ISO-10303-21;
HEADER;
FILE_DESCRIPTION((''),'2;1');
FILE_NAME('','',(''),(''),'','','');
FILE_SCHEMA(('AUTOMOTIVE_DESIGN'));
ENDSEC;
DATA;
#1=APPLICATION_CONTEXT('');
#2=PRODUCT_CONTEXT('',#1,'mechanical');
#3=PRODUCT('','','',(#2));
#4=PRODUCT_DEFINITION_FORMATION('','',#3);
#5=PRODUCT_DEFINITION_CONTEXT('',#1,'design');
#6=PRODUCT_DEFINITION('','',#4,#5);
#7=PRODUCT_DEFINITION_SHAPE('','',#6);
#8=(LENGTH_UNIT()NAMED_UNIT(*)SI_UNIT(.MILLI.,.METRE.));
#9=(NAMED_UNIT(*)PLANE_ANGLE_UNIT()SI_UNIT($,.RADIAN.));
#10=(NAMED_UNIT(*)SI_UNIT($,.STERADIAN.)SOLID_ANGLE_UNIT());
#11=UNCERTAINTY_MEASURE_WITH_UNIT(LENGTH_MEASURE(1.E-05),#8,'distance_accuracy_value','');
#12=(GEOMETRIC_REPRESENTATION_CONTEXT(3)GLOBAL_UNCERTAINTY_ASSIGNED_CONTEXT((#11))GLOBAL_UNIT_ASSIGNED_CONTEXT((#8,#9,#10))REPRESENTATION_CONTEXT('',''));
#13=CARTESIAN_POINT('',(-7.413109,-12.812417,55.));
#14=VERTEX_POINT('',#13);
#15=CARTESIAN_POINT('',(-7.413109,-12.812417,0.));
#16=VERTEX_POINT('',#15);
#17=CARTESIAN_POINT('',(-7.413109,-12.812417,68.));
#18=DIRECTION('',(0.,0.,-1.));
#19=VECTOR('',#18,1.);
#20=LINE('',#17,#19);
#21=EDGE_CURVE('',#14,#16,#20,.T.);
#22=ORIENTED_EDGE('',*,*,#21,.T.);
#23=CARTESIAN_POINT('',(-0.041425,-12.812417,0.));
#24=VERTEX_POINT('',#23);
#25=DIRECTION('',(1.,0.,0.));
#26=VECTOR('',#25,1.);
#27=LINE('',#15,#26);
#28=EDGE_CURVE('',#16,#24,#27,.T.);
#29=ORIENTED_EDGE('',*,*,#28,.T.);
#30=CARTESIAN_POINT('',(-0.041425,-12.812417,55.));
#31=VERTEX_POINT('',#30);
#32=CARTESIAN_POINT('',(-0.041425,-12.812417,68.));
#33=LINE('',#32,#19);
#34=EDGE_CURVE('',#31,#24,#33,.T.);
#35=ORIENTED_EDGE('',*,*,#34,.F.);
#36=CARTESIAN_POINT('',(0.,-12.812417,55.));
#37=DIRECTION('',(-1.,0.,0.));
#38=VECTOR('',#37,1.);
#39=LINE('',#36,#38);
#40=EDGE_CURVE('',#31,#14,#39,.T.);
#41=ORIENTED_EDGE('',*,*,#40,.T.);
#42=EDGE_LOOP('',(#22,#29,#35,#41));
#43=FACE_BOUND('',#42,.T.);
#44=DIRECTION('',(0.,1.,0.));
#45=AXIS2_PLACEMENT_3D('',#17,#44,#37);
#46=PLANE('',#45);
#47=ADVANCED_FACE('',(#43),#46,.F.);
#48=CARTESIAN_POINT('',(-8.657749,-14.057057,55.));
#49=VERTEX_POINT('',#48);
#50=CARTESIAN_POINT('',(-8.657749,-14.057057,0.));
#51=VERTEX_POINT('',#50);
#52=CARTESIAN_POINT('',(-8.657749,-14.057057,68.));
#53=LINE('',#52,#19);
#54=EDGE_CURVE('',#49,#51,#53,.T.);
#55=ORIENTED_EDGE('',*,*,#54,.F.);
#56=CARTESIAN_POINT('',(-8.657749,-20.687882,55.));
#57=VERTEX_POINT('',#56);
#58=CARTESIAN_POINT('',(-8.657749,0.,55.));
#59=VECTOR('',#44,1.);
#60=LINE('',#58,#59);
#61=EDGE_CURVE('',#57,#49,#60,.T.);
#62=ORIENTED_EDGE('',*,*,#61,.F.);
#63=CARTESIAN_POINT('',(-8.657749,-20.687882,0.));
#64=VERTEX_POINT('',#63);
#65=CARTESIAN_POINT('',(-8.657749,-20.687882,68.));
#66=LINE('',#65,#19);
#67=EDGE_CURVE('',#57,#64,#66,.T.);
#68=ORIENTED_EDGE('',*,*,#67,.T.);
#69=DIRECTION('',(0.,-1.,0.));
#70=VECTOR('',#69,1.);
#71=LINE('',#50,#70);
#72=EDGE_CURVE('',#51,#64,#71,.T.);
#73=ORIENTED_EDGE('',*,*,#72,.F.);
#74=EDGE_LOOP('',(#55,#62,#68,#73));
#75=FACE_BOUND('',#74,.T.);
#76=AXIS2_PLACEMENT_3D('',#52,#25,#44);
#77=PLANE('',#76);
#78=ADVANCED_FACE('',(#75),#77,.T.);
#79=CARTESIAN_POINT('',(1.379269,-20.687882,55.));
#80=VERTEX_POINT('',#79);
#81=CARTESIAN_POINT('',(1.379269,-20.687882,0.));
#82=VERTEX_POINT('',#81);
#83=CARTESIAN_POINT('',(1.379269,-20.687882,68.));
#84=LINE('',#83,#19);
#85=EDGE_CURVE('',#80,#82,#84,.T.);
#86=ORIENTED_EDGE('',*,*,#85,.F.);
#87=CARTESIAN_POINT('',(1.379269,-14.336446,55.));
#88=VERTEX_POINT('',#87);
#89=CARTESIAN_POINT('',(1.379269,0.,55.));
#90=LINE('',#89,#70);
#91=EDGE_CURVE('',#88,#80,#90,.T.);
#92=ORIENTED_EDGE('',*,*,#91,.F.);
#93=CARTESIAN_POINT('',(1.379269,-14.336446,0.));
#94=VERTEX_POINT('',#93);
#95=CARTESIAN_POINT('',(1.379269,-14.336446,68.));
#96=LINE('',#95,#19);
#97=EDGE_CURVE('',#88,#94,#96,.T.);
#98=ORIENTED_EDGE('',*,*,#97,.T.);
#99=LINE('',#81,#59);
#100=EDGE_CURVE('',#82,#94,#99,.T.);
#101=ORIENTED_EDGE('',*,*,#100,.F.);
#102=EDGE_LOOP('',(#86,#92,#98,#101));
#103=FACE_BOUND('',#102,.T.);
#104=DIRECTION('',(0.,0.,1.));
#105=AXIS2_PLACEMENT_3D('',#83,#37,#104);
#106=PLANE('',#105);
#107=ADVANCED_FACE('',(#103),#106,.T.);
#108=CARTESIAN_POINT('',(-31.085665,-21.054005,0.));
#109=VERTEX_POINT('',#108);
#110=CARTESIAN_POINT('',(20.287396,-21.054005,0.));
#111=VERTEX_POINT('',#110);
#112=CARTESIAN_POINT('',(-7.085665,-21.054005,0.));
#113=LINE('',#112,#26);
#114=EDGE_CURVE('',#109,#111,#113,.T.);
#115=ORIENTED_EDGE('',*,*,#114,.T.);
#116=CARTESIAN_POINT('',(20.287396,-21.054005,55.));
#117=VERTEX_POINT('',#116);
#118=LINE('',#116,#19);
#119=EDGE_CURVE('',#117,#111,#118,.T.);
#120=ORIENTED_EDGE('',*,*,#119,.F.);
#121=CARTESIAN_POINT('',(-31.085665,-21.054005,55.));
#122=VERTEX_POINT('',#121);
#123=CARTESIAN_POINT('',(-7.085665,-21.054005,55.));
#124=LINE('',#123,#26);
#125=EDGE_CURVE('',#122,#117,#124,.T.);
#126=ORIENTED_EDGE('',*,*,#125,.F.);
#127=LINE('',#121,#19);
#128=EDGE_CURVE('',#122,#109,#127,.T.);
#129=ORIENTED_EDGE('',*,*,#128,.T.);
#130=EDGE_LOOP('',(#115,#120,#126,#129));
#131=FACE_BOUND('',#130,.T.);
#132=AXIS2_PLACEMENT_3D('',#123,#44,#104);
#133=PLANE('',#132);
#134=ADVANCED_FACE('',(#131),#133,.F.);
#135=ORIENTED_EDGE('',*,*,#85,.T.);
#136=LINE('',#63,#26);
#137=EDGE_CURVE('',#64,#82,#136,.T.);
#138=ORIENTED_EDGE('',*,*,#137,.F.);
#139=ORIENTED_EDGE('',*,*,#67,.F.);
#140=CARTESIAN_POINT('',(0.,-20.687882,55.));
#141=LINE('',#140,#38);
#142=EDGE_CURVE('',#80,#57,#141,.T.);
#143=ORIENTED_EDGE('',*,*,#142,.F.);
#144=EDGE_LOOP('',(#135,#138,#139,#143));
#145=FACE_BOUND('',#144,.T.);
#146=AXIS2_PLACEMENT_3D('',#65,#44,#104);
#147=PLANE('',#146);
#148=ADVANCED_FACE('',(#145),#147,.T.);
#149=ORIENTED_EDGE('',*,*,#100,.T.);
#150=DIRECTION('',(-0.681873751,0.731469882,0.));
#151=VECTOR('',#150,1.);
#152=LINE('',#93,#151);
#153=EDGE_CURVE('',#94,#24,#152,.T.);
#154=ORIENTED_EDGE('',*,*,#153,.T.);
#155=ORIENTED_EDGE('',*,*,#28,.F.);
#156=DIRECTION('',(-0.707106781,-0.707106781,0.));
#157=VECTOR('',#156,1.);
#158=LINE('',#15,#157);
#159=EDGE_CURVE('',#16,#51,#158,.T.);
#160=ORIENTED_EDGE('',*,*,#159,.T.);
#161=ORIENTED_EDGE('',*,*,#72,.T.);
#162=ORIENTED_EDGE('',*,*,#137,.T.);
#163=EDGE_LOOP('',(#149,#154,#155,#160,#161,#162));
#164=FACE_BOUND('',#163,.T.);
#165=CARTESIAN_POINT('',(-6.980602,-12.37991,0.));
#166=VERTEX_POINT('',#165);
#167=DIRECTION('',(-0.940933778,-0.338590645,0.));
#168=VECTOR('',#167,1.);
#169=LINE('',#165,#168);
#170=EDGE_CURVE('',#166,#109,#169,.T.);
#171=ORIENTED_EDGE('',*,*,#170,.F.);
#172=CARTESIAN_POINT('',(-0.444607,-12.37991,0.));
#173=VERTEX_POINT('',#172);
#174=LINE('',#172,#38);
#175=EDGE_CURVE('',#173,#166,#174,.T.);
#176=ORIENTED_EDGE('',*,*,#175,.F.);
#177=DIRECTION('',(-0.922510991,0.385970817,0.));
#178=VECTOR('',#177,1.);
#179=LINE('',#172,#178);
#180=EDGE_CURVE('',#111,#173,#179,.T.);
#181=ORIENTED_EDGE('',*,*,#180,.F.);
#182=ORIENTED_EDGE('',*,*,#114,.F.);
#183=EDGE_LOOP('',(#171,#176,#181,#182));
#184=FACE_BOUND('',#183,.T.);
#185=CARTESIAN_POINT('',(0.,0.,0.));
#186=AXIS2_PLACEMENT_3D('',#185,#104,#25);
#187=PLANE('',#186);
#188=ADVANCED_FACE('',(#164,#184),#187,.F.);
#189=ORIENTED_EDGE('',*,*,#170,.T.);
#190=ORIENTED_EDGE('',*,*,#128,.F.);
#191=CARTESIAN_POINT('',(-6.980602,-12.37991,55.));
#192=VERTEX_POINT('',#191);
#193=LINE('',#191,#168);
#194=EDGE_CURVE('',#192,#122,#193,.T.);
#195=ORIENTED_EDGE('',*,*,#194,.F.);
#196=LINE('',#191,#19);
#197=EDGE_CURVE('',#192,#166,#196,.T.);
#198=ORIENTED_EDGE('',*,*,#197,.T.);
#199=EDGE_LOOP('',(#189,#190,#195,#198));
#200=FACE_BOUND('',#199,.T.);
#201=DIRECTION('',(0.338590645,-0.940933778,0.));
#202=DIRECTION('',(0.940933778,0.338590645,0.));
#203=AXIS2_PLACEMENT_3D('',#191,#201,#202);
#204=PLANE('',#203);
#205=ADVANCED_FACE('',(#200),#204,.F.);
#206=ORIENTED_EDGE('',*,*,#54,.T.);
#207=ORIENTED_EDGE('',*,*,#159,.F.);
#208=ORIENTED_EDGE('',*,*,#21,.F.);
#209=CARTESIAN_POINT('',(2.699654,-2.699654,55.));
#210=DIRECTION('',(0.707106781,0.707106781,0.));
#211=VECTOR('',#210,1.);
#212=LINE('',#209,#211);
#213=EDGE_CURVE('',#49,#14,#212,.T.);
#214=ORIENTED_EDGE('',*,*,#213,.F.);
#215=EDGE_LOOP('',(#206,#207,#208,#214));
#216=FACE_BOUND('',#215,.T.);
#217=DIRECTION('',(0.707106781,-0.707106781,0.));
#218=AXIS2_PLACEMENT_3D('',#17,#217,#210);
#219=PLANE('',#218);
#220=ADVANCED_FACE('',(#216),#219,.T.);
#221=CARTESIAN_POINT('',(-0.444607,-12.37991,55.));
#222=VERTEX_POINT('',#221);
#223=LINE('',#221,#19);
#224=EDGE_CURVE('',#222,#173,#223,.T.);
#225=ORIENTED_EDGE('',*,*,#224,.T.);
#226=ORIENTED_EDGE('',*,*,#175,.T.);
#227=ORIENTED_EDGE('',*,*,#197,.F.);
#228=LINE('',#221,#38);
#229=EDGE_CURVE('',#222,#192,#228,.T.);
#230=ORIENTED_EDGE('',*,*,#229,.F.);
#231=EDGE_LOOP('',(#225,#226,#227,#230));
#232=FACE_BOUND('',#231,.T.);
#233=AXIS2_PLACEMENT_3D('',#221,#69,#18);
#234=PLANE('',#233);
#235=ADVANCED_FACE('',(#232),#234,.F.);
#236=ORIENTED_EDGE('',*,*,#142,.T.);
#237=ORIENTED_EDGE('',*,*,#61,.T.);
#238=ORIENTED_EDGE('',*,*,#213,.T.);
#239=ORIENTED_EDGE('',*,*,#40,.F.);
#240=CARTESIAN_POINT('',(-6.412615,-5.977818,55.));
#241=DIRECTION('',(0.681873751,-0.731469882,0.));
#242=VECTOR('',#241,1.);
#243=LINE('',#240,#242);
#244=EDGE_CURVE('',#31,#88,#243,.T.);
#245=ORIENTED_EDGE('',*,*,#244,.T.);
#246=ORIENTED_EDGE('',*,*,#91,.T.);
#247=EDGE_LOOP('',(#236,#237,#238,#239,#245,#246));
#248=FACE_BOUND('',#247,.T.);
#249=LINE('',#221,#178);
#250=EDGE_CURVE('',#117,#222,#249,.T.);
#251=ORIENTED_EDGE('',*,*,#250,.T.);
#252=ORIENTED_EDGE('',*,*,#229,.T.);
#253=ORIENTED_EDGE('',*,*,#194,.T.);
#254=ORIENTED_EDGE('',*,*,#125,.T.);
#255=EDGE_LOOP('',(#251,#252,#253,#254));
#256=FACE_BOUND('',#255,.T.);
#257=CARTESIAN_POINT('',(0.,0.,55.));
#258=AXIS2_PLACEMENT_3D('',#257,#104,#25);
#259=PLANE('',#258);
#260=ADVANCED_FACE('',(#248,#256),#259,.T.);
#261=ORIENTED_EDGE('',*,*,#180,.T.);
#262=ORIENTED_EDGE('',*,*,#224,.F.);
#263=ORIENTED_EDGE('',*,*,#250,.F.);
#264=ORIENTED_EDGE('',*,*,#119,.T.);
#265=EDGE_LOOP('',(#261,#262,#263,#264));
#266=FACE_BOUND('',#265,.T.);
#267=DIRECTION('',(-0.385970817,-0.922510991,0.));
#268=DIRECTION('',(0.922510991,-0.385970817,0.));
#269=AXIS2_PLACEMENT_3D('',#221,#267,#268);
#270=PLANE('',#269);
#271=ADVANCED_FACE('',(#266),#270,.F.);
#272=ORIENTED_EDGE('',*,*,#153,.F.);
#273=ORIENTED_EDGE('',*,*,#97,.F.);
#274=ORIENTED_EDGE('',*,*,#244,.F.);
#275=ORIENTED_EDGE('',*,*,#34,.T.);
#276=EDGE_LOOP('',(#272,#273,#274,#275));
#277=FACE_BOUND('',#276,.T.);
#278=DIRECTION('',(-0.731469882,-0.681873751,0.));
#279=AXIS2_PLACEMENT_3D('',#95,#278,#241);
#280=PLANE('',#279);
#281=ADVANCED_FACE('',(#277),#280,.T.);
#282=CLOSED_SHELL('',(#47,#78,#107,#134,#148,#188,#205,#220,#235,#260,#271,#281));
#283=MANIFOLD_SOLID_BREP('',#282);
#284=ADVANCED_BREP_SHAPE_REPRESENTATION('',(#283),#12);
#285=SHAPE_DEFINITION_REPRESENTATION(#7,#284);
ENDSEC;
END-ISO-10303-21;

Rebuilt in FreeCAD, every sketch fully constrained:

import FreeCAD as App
import Part
import Sketcher
Q = App.Units.Quantity

doc = App.newDocument("Part")
body = doc.addObject("PartDesign::Body", "Body")

# Sketch on XY plane
sketch1 = doc.addObject("Sketcher::SketchObject", "Sketch")
body.addObject(sketch1)
sketch1.AttachmentSupport = (doc.XY_Plane, [""])
sketch1.MapMode = "FlatFace"
sketch1.addGeometry(Part.LineSegment(App.Vector(20, -21, 0), App.Vector(0, -12, 0)), False)
sketch1.addGeometry(Part.LineSegment(App.Vector(0, -12, 0), App.Vector(-7, -12, 0)), False)
sketch1.addGeometry(Part.LineSegment(App.Vector(-7, -12, 0), App.Vector(-31, -21, 0)), False)
sketch1.addGeometry(Part.LineSegment(App.Vector(-31, -21, 0), App.Vector(20, -21, 0)), False)
sketch1.addConstraint(Sketcher.Constraint("Coincident", 0, 2, 1, 1))
sketch1.addConstraint(Sketcher.Constraint("Coincident", 1, 2, 2, 1))
sketch1.addConstraint(Sketcher.Constraint("Coincident", 2, 2, 3, 1))
sketch1.addConstraint(Sketcher.Constraint("Coincident", 3, 2, 0, 1))
sketch1.addConstraint(Sketcher.Constraint("Horizontal", 1))
sketch1.addConstraint(Sketcher.Constraint("Horizontal", 3))
sketch1.addConstraint(Sketcher.Constraint("DistanceX", 3, 1, 3, 2, Q("51.373061 mm")))
sketch1.addConstraint(Sketcher.Constraint("DistanceX", 1, 2, -1, 1, Q("6.980602 mm")))
sketch1.addConstraint(Sketcher.Constraint("Distance", 0, Q("22.473448 mm")))
sketch1.addConstraint(Sketcher.Constraint("DistanceX", 1, 2, 1, 1, Q("6.535994 mm")))
sketch1.addConstraint(Sketcher.Constraint("DistanceY", 0, 2, -1, 1, Q("12.37991 mm")))
sketch1.addConstraint(Sketcher.Constraint("DistanceX", 2, 2, 0, 2, Q("30.641058 mm")))
pad1 = doc.addObject("PartDesign::Pad", "Pad")
body.addObject(pad1)
pad1.Profile = sketch1
pad1.Length = 55

# Sketch on XY plane
sketch2 = doc.addObject("Sketcher::SketchObject", "Sketch001")
body.addObject(sketch2)
sketch2.AttachmentSupport = (doc.XY_Plane, [""])
sketch2.MapMode = "FlatFace"
sketch2.addGeometry(Part.LineSegment(App.Vector(0, -12.8, 0), App.Vector(-7.4, -12.8, 0)), False)
sketch2.addGeometry(Part.LineSegment(App.Vector(-7.4, -12.8, 0), App.Vector(-8.7, -14.1, 0)), False)
sketch2.addGeometry(Part.LineSegment(App.Vector(-8.7, -14.1, 0), App.Vector(-8.7, -20.7, 0)), False)
sketch2.addGeometry(Part.LineSegment(App.Vector(-8.7, -20.7, 0), App.Vector(1.4, -20.7, 0)), False)
sketch2.addGeometry(Part.LineSegment(App.Vector(1.4, -20.7, 0), App.Vector(1.4, -14.3, 0)), False)
sketch2.addGeometry(Part.LineSegment(App.Vector(1.4, -14.3, 0), App.Vector(0, -12.8, 0)), False)
sketch2.addConstraint(Sketcher.Constraint("Coincident", 0, 2, 1, 1))
sketch2.addConstraint(Sketcher.Constraint("Coincident", 1, 2, 2, 1))
sketch2.addConstraint(Sketcher.Constraint("Coincident", 2, 2, 3, 1))
sketch2.addConstraint(Sketcher.Constraint("Coincident", 3, 2, 4, 1))
sketch2.addConstraint(Sketcher.Constraint("Coincident", 4, 2, 5, 1))
sketch2.addConstraint(Sketcher.Constraint("Coincident", 5, 2, 0, 1))
sketch2.addConstraint(Sketcher.Constraint("Horizontal", 0))
sketch2.addConstraint(Sketcher.Constraint("Vertical", 2))
sketch2.addConstraint(Sketcher.Constraint("Horizontal", 3))
sketch2.addConstraint(Sketcher.Constraint("Vertical", 4))
sketch2.addConstraint(Sketcher.Constraint("Angle", 1, Q("-135 deg")))
sketch2.addConstraint(Sketcher.Constraint("DistanceX", 3, 1, 3, 2, Q("10.037019 mm")))
sketch2.addConstraint(Sketcher.Constraint("DistanceX", 0, 2, 0, 1, Q("7.371683 mm")))
sketch2.addConstraint(Sketcher.Constraint("DistanceY", 2, 2, 2, 1, Q("6.630825 mm")))
sketch2.addConstraint(Sketcher.Constraint("DistanceY", 4, 1, 4, 2, Q("6.351436 mm")))
sketch2.addConstraint(Sketcher.Constraint("DistanceX", 0, 2, -1, 1, Q("7.413109 mm")))
sketch2.addConstraint(Sketcher.Constraint("DistanceX", 1, 2, -1, 1, Q("8.657749 mm")))
sketch2.addConstraint(Sketcher.Constraint("DistanceY", 0, 2, -1, 1, Q("12.812417 mm")))
pocket1 = doc.addObject("PartDesign::Pocket", "Pocket")
body.addObject(pocket1)
pocket1.Profile = sketch2
pocket1.Length = 68
pocket1.Reversed = True

doc.recompute()
